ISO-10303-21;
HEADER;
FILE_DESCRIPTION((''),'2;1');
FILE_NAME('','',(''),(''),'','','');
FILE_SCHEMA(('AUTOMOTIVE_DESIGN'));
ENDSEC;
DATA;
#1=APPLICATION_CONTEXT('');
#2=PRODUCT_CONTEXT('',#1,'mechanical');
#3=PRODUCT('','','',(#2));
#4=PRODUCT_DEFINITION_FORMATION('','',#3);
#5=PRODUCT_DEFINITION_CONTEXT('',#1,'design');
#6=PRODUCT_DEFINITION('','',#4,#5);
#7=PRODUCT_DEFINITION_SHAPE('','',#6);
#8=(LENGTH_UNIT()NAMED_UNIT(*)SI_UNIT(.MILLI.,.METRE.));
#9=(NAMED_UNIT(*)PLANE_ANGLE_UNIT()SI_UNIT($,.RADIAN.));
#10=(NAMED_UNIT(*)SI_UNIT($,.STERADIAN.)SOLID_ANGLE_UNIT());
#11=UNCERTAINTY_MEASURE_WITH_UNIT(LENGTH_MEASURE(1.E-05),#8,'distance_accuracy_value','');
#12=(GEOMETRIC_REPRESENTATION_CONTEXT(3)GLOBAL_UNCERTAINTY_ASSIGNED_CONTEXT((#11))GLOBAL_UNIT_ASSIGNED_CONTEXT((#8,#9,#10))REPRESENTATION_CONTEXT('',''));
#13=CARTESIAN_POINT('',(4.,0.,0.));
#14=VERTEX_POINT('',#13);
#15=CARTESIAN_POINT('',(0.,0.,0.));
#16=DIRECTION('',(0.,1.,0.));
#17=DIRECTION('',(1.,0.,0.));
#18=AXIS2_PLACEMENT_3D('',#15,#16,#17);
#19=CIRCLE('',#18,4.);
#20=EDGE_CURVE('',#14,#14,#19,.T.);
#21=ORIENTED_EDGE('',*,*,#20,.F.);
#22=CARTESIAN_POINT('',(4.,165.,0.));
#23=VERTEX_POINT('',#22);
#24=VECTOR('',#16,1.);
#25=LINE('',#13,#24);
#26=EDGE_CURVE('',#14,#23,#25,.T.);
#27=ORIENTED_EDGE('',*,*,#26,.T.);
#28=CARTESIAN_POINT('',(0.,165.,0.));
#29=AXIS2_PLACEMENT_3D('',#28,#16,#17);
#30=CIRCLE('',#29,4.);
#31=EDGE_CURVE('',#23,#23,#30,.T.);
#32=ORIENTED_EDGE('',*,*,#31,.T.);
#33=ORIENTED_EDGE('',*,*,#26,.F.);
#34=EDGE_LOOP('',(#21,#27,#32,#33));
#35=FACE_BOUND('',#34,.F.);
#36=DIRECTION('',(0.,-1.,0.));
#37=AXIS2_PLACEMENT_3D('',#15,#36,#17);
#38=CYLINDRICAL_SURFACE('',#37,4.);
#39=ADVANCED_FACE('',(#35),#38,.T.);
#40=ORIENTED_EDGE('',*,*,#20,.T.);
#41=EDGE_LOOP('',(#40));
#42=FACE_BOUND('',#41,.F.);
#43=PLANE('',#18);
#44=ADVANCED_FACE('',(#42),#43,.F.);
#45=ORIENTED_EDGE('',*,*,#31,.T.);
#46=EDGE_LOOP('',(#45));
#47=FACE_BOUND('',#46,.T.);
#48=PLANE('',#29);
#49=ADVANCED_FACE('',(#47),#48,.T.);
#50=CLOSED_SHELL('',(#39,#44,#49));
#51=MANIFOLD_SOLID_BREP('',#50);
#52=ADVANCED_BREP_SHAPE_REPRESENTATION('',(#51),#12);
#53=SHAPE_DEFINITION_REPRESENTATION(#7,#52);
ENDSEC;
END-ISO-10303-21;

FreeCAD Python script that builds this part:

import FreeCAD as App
import Part
import Sketcher
from FreeCAD import Vector

doc = App.newDocument("Part")
body = doc.addObject("PartDesign::Body", "Body")

sketch1 = doc.addObject("Sketcher::SketchObject", "Sketch")
body.addObject(sketch1)
sketch1.AttachmentSupport = (doc.XZ_Plane, [""])
sketch1.MapMode = "FlatFace"
sketch1.addGeometry(Part.Circle(Vector(0, 0, 0), Vector(0, 0, 1), 4), False)
sketch1.addConstraint(Sketcher.Constraint("Coincident", 0, 3, -1, 1))
sketch1.addConstraint(Sketcher.Constraint("Diameter", 0, 8.0))
pad1 = doc.addObject("PartDesign::Pad", "Pad")
body.addObject(pad1)
pad1.Profile = sketch1
pad1.Length = 165
pad1.Reversed = True

doc.recompute()
